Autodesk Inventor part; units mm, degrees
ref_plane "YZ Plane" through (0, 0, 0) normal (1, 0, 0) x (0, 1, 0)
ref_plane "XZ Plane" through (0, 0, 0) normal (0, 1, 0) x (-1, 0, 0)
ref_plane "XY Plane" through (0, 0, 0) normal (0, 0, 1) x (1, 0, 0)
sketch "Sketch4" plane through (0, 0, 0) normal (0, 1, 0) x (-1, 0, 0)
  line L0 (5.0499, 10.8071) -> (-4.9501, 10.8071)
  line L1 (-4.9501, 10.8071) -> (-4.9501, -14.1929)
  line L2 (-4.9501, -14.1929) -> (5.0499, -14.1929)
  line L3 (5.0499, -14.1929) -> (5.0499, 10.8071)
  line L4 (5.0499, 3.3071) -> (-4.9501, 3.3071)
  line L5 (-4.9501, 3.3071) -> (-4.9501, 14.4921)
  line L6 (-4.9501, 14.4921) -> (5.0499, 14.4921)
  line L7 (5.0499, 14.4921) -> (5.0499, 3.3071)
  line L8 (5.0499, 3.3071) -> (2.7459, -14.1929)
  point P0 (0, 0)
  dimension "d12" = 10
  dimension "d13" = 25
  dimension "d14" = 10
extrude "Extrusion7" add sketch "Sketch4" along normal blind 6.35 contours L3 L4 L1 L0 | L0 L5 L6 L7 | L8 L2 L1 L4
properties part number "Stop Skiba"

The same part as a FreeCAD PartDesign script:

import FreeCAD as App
import Part
import Sketcher
Q = App.Units.Quantity

doc = App.newDocument("Part")
params = doc.addObject("Spreadsheet::Sheet", "Params")
for row, (alias, value) in enumerate([
    ("sketch1_width", "0.303 in"),
    ("pad1_length", "0.25 in"),
], start=1):
    params.set(f"A{row}", alias)
    params.set(f"B{row}", "=" + value)
    params.setAlias(f"B{row}", alias)

body = doc.addObject("PartDesign::Body", "Body")

sketch1 = doc.addObject("Sketcher::SketchObject", "Sketch")
body.addObject(sketch1)
sketch1.AttachmentSupport = (doc.XZ_Plane, [""])
sketch1.MapMode = "FlatFace"
sketch1.addGeometry([
    Part.LineSegment(App.Vector(-5, 3, 0), App.Vector(-5, 14, 0)),
    Part.LineSegment(App.Vector(-5, 14, 0), App.Vector(5, 14, 0)),
    Part.LineSegment(App.Vector(5, 14, 0), App.Vector(5, -14, 0)),
    Part.LineSegment(App.Vector(5, -14, 0), App.Vector(-3, -14, 0)),
    Part.LineSegment(App.Vector(-3, -14, 0), App.Vector(-5, 3, 0)),
], False)
sketch1.addConstraint([
    Sketcher.Constraint("Coincident", 0, 2, 1, 1),
    Sketcher.Constraint("Coincident", 1, 2, 2, 1),
    Sketcher.Constraint("Coincident", 2, 2, 3, 1),
    Sketcher.Constraint("Coincident", 3, 2, 4, 1),
    Sketcher.Constraint("Coincident", 4, 2, 0, 1),
    Sketcher.Constraint("Vertical", 0),
    Sketcher.Constraint("Horizontal", 1),
    Sketcher.Constraint("Vertical", 2),
    Sketcher.Constraint("Horizontal", 3),
    Sketcher.Constraint("DistanceX", 1, 1, 1, 2, Q("0.3937 in")),
    Sketcher.Constraint("Angle", 4, Q("97.5003 deg")),
    Sketcher.Constraint("DistanceX", 3, 2, 3, 1, Q("0.303 in")),
    Sketcher.Constraint("DistanceY", 0, 1, 0, 2, Q("11.185 mm")),
    Sketcher.Constraint("DistanceX", 3, 2, -1, 1, Q("0.1081 in")),
    Sketcher.Constraint("DistanceY", -1, 1, 4, 2, Q("0.1302 in")),
])
sketch1.setExpression("Constraints[11]", "Params.sketch1_width")
pad1 = doc.addObject("PartDesign::Pad", "Pad")
body.addObject(pad1)
pad1.Profile = sketch1
pad1.setExpression("Length", "Params.pad1_length")
pad1.Reversed = True

doc.recompute()
